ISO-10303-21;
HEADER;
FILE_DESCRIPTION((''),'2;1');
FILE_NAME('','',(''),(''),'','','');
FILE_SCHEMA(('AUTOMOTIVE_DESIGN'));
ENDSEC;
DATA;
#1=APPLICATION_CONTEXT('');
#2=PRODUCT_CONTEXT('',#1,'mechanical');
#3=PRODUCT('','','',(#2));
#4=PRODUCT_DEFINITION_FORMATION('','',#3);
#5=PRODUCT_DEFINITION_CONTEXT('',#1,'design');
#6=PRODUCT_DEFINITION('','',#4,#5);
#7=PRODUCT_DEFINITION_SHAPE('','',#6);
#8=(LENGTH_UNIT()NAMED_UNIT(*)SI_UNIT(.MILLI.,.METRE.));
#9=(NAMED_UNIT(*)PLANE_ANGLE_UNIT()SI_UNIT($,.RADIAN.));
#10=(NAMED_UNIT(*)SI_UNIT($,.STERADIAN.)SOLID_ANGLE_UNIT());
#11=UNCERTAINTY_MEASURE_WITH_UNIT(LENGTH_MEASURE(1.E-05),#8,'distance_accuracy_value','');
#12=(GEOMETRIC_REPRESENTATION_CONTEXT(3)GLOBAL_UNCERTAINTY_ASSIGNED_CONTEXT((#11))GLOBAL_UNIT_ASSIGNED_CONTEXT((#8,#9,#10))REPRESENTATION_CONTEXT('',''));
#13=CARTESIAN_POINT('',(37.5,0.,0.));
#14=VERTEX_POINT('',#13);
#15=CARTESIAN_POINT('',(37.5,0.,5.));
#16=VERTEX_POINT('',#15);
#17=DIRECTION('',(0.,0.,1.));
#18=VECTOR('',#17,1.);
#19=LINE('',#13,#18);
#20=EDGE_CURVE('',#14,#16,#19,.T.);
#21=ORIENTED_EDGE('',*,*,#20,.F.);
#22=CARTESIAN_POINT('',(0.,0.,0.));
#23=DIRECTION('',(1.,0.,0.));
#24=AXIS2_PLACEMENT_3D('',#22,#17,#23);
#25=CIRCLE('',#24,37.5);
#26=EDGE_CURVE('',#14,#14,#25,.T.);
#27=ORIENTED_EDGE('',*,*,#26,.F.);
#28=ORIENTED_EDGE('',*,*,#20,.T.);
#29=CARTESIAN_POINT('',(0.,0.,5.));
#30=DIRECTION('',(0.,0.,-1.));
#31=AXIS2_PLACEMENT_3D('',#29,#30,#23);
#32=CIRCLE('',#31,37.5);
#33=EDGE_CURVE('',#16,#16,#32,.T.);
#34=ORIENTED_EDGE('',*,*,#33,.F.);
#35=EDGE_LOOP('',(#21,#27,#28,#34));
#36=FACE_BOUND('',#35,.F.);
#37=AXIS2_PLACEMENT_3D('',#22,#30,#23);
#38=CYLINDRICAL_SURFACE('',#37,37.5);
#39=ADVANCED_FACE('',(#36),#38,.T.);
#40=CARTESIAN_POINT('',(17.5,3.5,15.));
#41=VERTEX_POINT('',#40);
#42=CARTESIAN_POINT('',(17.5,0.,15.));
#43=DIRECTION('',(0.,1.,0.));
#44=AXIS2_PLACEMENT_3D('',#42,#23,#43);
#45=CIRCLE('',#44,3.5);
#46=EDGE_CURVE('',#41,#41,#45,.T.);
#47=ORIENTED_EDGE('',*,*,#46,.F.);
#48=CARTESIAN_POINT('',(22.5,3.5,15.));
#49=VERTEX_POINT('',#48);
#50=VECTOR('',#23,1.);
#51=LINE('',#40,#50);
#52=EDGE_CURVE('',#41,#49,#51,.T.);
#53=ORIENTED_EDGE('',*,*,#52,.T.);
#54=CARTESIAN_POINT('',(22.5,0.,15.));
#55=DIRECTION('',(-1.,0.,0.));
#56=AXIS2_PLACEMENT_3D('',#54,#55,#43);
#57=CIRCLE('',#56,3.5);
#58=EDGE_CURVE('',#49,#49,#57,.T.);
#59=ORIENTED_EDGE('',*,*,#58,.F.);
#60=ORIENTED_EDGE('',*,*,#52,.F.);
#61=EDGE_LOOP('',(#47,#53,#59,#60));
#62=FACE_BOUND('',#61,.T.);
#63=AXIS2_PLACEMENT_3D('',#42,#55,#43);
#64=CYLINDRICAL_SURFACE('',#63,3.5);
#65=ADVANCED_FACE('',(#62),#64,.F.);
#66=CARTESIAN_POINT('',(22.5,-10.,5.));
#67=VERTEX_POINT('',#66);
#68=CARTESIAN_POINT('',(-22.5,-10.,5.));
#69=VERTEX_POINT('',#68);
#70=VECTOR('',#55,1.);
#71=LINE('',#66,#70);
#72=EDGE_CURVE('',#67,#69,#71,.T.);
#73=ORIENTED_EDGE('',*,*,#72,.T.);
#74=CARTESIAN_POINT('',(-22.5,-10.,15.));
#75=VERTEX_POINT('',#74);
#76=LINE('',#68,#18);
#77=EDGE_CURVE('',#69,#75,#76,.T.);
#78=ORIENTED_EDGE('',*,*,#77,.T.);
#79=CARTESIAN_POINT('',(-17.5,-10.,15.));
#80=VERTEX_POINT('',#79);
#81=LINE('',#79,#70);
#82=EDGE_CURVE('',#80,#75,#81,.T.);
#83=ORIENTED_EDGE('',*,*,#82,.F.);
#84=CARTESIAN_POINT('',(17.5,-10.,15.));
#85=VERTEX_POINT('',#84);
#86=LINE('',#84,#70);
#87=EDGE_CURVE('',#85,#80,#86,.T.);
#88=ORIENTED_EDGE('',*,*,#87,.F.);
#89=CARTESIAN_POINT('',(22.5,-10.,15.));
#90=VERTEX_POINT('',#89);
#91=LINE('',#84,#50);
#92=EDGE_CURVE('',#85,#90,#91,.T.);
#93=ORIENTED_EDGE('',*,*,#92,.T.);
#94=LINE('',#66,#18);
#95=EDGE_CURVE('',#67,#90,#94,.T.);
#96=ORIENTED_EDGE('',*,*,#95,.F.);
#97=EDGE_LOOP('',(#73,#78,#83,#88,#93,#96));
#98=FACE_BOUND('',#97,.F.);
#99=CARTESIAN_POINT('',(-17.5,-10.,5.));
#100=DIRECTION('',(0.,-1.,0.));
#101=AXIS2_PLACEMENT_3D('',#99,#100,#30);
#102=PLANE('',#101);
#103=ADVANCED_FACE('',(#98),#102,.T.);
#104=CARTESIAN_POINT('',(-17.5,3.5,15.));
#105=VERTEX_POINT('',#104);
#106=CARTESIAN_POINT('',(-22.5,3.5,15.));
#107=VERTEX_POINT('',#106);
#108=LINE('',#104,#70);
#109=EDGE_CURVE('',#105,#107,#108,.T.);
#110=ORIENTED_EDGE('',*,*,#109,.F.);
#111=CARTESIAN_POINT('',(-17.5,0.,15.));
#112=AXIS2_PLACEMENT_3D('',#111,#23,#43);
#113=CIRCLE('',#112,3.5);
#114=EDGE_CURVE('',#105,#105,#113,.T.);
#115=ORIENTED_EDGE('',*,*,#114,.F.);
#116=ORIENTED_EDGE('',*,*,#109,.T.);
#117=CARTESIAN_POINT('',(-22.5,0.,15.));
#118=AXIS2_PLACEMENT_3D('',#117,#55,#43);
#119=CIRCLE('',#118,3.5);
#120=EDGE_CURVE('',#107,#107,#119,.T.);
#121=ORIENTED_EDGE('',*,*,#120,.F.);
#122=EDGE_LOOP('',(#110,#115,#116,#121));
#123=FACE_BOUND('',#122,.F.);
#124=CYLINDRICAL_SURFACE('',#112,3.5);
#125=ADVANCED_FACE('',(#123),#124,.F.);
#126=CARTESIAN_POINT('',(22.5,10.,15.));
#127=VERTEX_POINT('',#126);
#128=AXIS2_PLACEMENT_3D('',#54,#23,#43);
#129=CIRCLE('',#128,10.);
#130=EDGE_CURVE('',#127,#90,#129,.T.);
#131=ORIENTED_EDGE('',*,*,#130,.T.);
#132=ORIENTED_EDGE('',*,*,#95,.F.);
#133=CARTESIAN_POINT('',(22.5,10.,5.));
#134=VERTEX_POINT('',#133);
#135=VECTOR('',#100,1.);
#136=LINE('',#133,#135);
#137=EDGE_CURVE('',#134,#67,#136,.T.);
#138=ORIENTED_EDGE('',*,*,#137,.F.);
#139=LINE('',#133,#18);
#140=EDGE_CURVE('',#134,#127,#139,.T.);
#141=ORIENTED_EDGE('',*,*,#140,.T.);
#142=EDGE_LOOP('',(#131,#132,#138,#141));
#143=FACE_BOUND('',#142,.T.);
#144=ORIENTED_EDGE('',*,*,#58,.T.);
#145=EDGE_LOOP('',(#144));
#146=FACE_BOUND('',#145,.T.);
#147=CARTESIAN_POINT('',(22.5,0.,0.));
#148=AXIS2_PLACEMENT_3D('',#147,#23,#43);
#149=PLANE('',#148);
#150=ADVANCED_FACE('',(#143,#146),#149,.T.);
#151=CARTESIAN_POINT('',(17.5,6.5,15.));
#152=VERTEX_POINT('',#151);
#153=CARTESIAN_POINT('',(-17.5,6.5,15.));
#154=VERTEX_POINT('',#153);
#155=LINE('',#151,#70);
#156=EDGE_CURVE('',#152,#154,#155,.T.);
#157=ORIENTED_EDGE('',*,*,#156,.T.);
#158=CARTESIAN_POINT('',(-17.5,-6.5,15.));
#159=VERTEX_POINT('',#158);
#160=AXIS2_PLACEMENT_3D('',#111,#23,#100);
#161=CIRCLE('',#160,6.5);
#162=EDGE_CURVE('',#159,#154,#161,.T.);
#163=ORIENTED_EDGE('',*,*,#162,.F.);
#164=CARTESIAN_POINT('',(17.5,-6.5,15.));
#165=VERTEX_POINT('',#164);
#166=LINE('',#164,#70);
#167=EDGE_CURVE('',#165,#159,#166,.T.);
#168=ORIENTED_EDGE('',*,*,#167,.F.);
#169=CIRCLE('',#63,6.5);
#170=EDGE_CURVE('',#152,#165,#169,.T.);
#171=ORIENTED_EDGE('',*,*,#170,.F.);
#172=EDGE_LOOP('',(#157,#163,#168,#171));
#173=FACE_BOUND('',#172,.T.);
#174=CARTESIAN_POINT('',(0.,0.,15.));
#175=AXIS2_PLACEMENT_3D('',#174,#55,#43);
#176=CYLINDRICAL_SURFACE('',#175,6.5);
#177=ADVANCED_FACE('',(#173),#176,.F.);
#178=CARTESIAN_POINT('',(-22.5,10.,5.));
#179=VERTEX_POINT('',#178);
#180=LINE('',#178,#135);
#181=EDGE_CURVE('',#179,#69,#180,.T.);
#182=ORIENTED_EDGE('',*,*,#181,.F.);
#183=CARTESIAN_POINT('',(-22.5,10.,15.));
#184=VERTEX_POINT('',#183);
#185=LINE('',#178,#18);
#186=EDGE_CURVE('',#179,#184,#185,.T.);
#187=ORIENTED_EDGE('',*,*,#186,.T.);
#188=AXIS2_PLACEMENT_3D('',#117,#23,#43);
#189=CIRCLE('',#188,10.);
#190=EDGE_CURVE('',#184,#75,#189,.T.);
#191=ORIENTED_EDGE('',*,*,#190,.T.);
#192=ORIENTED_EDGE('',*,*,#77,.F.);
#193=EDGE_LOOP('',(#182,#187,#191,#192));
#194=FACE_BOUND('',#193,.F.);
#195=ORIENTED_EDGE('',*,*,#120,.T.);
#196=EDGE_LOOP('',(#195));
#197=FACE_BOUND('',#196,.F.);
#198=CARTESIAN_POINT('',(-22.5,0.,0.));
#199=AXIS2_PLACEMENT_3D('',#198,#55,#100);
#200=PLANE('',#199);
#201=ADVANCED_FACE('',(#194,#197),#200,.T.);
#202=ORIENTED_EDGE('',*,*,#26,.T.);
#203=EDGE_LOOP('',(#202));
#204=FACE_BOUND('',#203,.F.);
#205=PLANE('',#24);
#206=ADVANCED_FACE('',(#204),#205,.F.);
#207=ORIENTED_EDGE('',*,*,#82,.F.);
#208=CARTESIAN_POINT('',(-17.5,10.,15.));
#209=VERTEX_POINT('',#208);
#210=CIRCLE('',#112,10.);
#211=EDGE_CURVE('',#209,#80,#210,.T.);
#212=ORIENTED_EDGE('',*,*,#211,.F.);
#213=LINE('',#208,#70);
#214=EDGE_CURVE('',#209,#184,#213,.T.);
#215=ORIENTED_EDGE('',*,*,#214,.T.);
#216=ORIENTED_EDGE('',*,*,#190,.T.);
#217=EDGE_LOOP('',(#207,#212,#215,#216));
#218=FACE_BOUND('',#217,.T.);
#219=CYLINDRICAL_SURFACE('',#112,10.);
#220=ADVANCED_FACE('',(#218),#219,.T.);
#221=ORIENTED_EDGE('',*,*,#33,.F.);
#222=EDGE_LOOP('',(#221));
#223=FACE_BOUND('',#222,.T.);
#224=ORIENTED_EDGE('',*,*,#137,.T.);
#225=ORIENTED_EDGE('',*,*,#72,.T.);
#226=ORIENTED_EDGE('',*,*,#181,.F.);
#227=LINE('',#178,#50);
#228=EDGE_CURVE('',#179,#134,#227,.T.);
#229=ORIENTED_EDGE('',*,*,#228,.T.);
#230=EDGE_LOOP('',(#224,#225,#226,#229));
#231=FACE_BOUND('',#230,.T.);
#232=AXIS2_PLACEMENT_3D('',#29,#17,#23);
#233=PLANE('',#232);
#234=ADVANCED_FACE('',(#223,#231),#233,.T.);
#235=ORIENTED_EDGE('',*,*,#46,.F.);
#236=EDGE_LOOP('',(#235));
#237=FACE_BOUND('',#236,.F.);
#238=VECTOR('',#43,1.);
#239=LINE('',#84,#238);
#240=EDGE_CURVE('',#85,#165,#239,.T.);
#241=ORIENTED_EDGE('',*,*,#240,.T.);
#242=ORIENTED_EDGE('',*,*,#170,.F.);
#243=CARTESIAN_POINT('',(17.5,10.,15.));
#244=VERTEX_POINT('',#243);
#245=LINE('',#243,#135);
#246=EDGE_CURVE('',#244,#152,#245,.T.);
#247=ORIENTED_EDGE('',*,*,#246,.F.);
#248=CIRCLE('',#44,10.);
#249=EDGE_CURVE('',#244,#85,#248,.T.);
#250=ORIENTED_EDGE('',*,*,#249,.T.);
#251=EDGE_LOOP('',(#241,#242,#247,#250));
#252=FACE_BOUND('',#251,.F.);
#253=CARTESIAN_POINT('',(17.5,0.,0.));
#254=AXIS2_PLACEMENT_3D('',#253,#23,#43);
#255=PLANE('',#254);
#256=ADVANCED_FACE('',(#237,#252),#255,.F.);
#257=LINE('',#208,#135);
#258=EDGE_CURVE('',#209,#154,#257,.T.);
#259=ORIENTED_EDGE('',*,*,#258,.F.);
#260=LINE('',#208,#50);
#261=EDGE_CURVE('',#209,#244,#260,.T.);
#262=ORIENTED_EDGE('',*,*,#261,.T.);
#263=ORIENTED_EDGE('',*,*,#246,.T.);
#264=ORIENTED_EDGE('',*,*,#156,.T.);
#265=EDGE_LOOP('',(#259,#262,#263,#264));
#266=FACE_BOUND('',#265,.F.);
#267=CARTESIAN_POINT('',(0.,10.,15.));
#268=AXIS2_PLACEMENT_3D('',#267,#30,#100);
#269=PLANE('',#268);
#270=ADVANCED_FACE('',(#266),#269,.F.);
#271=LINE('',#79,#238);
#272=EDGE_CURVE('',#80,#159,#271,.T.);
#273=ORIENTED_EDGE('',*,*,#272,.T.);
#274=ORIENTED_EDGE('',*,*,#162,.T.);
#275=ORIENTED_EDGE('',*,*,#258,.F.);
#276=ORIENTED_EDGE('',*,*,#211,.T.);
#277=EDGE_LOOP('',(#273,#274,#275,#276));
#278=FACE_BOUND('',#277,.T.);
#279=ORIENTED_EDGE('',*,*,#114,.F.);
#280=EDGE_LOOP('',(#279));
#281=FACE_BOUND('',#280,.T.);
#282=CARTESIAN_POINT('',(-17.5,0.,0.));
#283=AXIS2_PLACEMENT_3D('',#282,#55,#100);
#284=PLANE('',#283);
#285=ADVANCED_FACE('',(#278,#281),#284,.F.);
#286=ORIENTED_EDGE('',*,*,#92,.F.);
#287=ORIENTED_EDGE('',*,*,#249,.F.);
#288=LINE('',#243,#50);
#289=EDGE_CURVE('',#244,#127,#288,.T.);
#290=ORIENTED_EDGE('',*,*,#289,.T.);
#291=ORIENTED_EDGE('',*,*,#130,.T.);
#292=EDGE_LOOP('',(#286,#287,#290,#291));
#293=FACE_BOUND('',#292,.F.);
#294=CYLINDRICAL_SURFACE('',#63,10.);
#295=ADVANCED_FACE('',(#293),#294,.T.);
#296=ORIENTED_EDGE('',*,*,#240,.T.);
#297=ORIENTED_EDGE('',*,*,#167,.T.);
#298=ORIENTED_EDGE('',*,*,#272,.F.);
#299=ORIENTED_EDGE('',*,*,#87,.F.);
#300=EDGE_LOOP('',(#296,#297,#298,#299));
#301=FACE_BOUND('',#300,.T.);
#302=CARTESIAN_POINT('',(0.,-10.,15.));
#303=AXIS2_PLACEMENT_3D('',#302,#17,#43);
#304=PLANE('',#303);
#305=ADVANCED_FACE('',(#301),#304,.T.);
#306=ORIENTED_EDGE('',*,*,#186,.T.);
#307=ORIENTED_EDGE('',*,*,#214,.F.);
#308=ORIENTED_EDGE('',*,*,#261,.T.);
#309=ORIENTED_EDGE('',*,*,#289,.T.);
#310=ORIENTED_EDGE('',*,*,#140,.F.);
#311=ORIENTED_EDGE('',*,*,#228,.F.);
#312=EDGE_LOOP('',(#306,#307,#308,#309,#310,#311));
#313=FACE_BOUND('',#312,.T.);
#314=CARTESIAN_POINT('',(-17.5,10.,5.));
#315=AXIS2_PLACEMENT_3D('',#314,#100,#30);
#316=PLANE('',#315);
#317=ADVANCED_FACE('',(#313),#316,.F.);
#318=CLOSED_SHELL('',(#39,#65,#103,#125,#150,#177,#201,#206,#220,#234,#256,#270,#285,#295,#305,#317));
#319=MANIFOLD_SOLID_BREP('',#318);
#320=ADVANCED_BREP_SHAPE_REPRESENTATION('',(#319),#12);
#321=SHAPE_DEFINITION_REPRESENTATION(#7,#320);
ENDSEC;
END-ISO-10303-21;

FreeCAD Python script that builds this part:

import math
import FreeCAD as App
import Part
import Sketcher
from FreeCAD import Vector
Q = App.Units.Quantity

doc = App.newDocument("Part")
body = doc.addObject("PartDesign::Body", "Body")

# Sketch on XY plane
sketch1 = body.newObject("Sketcher::SketchObject", "Sketch")
sketch1.AttachmentSupport = (doc.getObject("XY_Plane"), [""])
sketch1.MapMode = "FlatFace"
sketch1.addGeometry(Part.Circle(Vector(0, 0, 0), Vector(0, 0, 1), 38), False)
sketch1.addConstraint([
    Sketcher.Constraint("Coincident", 0, 3, -1, 1),
    Sketcher.Constraint("Diameter", 0, Q("75 mm")),
])
pad1 = body.newObject("PartDesign::Pad", "Pad")
pad1.Profile = sketch1
pad1.Length = 5

# Sketch on YZ plane
sketch2 = body.newObject("Sketcher::SketchObject", "Sketch001")
sketch2.AttachmentSupport = (doc.getObject("YZ_Plane"), [""])
sketch2.MapMode = "FlatFace"
sketch2.addGeometry([
    Part.LineSegment(Vector(-10, 5, 0), Vector(10, 5, 0)),  # 0
    Part.LineSegment(Vector(10, 5, 0), Vector(10, 15, 0)),  # 1
    Part.LineSegment(Vector(10, 15, 0), Vector(6.5, 15, 0)),  # 2
    Part.ArcOfCircle(Part.Circle(Vector(0, 15, 0), Vector(0, 0, 1), 6.5), math.radians(180), math.radians(360)),  # 3
    Part.LineSegment(Vector(-6.5, 15, 0), Vector(-10, 15, 0)),  # 4
    Part.LineSegment(Vector(-10, 15, 0), Vector(-10, 5, 0)),  # 5
], False)
sketch2.addConstraint([
    Sketcher.Constraint("Coincident", 0, 2, 1, 1),
    Sketcher.Constraint("Coincident", 1, 2, 2, 1),
    Sketcher.Constraint("Coincident", 2, 2, 3, 2),
    Sketcher.Constraint("Coincident", 3, 1, 4, 1),
    Sketcher.Constraint("Coincident", 4, 2, 5, 1),
    Sketcher.Constraint("Coincident", 5, 2, 0, 1),
    Sketcher.Constraint("Horizontal", 0),
    Sketcher.Constraint("Vertical", 1),
    Sketcher.Constraint("Horizontal", 2),
    Sketcher.Constraint("Horizontal", 4),
    Sketcher.Constraint("Vertical", 5),
    Sketcher.Constraint("Symmetric", 2, 2, 3, 1, -2),
    Sketcher.Constraint("Horizontal", 3, 3, 1, 2),
    Sketcher.Constraint("Equal", 2, 4),
    Sketcher.Constraint("Radius", 3, Q("6.5 mm")),
    Sketcher.Constraint("DistanceX", 0, 1, 0, 2, Q("20 mm")),
    Sketcher.Constraint("DistanceY", 1, 1, 1, 2, Q("10 mm")),
    Sketcher.Constraint("DistanceY", -1, 1, 3, 3, Q("15 mm")),
])
pad2 = body.newObject("PartDesign::Pad", "Pad001")
pad2.Profile = sketch2
pad2.Length = 35
pad2.Midplane = True

# Sketch on YZ plane
sketch3 = body.newObject("Sketcher::SketchObject", "Sketch002")
sketch3.AttachmentSupport = (doc.getObject("YZ_Plane"), [""])
sketch3.MapMode = "FlatFace"
sketch3.AttachmentOffset = App.Placement(Vector(0, 0, 17.5), App.Rotation())
sketch3.addGeometry([
    Part.LineSegment(Vector(-10, 5, 0), Vector(10, 5, 0)),  # 0
    Part.LineSegment(Vector(10, 5, 0), Vector(10, 15, 0)),  # 1
    Part.ArcOfCircle(Part.Circle(Vector(0, 15, 0), Vector(0, 0, 1), 10), math.radians(0), math.radians(180)),  # 2
    Part.LineSegment(Vector(-10, 15, 0), Vector(-10, 5, 0)),  # 3
    Part.Circle(Vector(0, 15, 0), Vector(0, 0, 1), 3.5),  # 4
], False)
sketch3.addConstraint([
    Sketcher.Constraint("Coincident", 0, 2, 1, 1),
    Sketcher.Constraint("Tangent", 1, 2, 2, 1),
    Sketcher.Constraint("Tangent", 2, 2, 3, 1),
    Sketcher.Constraint("Coincident", 3, 2, 0, 1),
    Sketcher.Constraint("Horizontal", 0),
    Sketcher.Constraint("Vertical", 1),
    Sketcher.Constraint("Vertical", 3),
    Sketcher.Constraint("Coincident", 4, 3, 2, 3),
    Sketcher.Constraint("PointOnObject", 2, 3, -2),
    Sketcher.Constraint("Diameter", 4, Q("7 mm")),
    Sketcher.Constraint("Radius", 2, Q("10 mm")),
    Sketcher.Constraint("DistanceY", 1, 1, 1, 2, Q("10 mm")),
    Sketcher.Constraint("DistanceY", -1, 1, 2, 3, Q("15 mm")),
])
pad3 = body.newObject("PartDesign::Pad", "Pad002")
pad3.Profile = sketch3
pad3.Length = 5
doc.recompute()

mirrored = body.newObject("PartDesign::Mirrored", "Mirrored")
mirrored.Originals = [pad3]
mirrored.MirrorPlane = (doc.getObject("YZ_Plane"), [""])
body.Tip = mirrored

# Sketch on XY plane
sketch4 = body.newObject("Sketcher::SketchObject", "Sketch003")
sketch4.AttachmentSupport = (doc.getObject("XY_Plane"), [""])
sketch4.MapMode = "FlatFace"
sketch4.AttachmentOffset = App.Placement(Vector(0, 0, 5), App.Rotation())
sketch4.addGeometry([
    Part.LineSegment(Vector(-5, -32.5, 0), Vector(-5, -37.2, 0)),
    Part.ArcOfCircle(Part.Circle(Vector(0, 0, 0), Vector(0, 0, 1), 37.5), math.radians(-97.66), math.radians(-82.34)),
    Part.LineSegment(Vector(5, -37.2, 0), Vector(5, -32.5, 0)),
    Part.ArcOfCircle(Part.Circle(Vector(0, -32.5, 0), Vector(0, 0, 1), 5), math.radians(0), math.radians(180)),
], False)
sketch4.addConstraint([
    Sketcher.Constraint("Coincident", 0, 2, 1, 1),
    Sketcher.Constraint("Coincident", 1, 2, 2, 1),
    Sketcher.Constraint("Tangent", 2, 2, 3, 1),
    Sketcher.Constraint("Tangent", 3, 2, 0, 1),
    Sketcher.Constraint("Vertical", 0),
    Sketcher.Constraint("Vertical", 2),
    Sketcher.Constraint("Coincident", 1, 3, -1, 1),
    Sketcher.Constraint("PointOnObject", 3, 3, -2),
    Sketcher.Constraint("Radius", 3, Q("5 mm")),
    Sketcher.Constraint("Radius", 1, Q("37.5 mm")),
    Sketcher.Constraint("DistanceY", 3, 3, -1, 1, Q("32.5 mm")),
])
pocket1 = body.newObject("PartDesign::Pocket", "Pocket")
pocket1.Profile = sketch4
pocket1.Type = "ThroughAll"
pocket1.Reversed = True

doc.recompute()
